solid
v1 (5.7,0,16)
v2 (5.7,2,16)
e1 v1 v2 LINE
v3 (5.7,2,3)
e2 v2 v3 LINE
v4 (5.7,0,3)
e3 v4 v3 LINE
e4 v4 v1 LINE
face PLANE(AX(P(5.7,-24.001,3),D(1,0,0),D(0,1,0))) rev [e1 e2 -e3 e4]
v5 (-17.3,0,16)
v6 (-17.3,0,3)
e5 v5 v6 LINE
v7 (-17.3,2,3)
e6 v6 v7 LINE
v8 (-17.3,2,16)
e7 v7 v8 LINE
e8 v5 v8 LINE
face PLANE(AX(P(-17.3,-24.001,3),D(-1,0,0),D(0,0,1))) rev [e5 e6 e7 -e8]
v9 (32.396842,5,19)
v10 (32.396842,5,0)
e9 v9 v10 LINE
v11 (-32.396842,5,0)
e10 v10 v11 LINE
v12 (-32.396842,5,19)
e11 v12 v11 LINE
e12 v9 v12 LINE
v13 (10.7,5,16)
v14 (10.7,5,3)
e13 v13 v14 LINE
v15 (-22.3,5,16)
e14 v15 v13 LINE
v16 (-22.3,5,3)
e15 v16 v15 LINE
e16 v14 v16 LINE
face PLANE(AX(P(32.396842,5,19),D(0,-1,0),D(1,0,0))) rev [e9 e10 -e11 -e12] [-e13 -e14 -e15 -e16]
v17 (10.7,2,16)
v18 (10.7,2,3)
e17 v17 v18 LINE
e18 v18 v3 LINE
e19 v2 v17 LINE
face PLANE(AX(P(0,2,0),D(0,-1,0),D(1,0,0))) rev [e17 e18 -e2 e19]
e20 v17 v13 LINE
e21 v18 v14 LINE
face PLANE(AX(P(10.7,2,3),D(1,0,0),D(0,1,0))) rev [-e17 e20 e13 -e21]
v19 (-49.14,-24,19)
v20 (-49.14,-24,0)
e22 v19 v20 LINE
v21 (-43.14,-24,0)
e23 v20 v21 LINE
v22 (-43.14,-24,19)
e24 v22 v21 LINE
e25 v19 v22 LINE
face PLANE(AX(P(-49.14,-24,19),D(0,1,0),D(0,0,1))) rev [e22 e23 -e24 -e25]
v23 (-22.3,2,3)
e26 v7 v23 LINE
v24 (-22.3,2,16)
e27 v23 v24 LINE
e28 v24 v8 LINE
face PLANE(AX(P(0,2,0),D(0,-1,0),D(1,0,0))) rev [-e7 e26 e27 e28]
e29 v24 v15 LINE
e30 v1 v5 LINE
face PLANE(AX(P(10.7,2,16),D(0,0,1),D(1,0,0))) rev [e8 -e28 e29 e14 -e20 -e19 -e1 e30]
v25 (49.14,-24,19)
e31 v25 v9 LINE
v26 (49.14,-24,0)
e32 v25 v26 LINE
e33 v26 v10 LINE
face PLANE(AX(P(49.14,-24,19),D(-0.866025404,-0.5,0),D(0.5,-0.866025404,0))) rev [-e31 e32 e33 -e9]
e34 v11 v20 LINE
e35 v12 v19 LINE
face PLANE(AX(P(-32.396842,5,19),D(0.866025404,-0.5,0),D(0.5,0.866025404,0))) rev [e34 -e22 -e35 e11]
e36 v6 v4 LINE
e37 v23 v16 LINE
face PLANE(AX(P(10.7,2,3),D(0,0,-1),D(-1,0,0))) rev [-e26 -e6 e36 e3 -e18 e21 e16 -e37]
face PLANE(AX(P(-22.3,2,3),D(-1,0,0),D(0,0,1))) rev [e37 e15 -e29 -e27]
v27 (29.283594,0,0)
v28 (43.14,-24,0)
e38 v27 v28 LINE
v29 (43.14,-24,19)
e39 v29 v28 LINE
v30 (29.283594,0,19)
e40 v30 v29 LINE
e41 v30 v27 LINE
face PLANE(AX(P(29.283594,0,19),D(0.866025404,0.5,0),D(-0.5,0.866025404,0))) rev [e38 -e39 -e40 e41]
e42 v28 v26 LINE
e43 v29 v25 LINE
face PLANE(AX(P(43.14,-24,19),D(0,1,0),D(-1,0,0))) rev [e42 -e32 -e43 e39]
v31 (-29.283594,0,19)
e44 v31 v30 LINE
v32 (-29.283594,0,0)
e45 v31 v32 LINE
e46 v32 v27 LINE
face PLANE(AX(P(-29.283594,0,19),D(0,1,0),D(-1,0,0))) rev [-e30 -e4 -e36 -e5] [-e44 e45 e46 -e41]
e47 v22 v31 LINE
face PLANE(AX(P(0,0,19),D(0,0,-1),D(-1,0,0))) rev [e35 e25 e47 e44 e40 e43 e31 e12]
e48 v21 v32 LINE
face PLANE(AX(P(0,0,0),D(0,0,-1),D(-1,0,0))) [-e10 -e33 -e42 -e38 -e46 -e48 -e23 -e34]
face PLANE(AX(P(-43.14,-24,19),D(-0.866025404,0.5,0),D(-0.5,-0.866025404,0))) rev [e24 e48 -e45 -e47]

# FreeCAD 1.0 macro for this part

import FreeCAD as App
import Part
import Sketcher

V = App.Vector
Q = App.Units.Quantity


def add_polygon(sketch, points):
    """Adds a closed chain of lines whose ends are joined by coincident constraints."""
    first, n = sketch.GeometryCount, len(points)
    for a, b in zip(points, points[1:] + points[:1]):
        sketch.addGeometry(Part.LineSegment(App.Vector(*a, 0), App.Vector(*b, 0)), False)
    for i in range(n):
        sketch.addConstraint(Sketcher.Constraint("Coincident", first + i, 2, first + (i + 1) % n, 1))

doc = App.newDocument("Part")
body = doc.addObject("PartDesign::Body", "Body")

sketch1 = doc.addObject("Sketcher::SketchObject", "Sketch")
body.addObject(sketch1)
sketch1.AttachmentSupport = (doc.XY_Plane, [""])
sketch1.MapMode = "FlatFace"
add_polygon(sketch1, [(-29.283594, 0), (29.283594, 0), (43.14, -24), (49.14, -24), (32.396842, 5), (-32.396842, 5), (-49.14, -24), (-43.14, -24)])
sketch1.addConstraint([
    Sketcher.Constraint("Horizontal", 0),
    Sketcher.Constraint("Horizontal", 2),
    Sketcher.Constraint("Horizontal", 4),
    Sketcher.Constraint("Horizontal", 6),
    Sketcher.Constraint("Symmetric", 0, 2, 7, 2, -1, 1),
    Sketcher.Constraint("Symmetric", 2, 2, 5, 2, -2),
    Sketcher.Constraint("Parallel", 1, 3),
    Sketcher.Constraint("Parallel", 5, 7),
    Sketcher.Constraint("Equal", 2, 6),
    Sketcher.Constraint("DistanceX", 2, 1, 2, 2, Q("6 mm")),
    Sketcher.Constraint("Angle", 1, Q("-60 deg")),
    Sketcher.Constraint("DistanceY", 1, 2, -1, 1, Q("24 mm")),
    Sketcher.Constraint("DistanceY", -1, 1, 3, 2, Q("5 mm")),
    Sketcher.Constraint("DistanceX", -1, 1, 1, 2, Q("43.14 mm")),
])
pad1 = doc.addObject("PartDesign::Pad", "Pad")
body.addObject(pad1)
pad1.Profile = sketch1
pad1.Length = 19

sketch2 = doc.addObject("Sketcher::SketchObject", "Sketch001")
body.addObject(sketch2)
sketch2.AttachmentSupport = (doc.XZ_Plane, [""])
sketch2.MapMode = "FlatFace"
sketch2.AttachmentOffset = App.Placement(V(0, 0, -5), App.Rotation())
add_polygon(sketch2, [(-22.3, 3), (-22.3, 16), (10.7, 16), (10.7, 3)])
sketch2.addConstraint([
    Sketcher.Constraint("Vertical", 0),
    Sketcher.Constraint("Horizontal", 1),
    Sketcher.Constraint("Vertical", 2),
    Sketcher.Constraint("Horizontal", 3),
    Sketcher.Constraint("DistanceX", 1, 1, 1, 2, Q("33 mm")),
    Sketcher.Constraint("DistanceY", 0, 1, 0, 2, Q("13 mm")),
    Sketcher.Constraint("DistanceY", -1, 1, 0, 2, Q("16 mm")),
    Sketcher.Constraint("DistanceX", 0, 2, -1, 1, Q("22.3 mm")),
])
pocket1 = doc.addObject("PartDesign::Pocket", "Pocket")
body.addObject(pocket1)
pocket1.Profile = sketch2
pocket1.Length = 3
pocket1.Reversed = True

sketch3 = doc.addObject("Sketcher::SketchObject", "Sketch002")
body.addObject(sketch3)
sketch3.AttachmentSupport = (doc.XZ_Plane, [""])
sketch3.MapMode = "FlatFace"
sketch3.AttachmentOffset = App.Placement(V(0, 0, -2), App.Rotation())
add_polygon(sketch3, [(-17.3, 3), (-17.3, 16), (5.7, 16), (5.7, 3)])
sketch3.addConstraint([
    Sketcher.Constraint("Vertical", 0),
    Sketcher.Constraint("Horizontal", 1),
    Sketcher.Constraint("Vertical", 2),
    Sketcher.Constraint("Horizontal", 3),
    Sketcher.Constraint("DistanceX", 1, 1, 1, 2, Q("23 mm")),
    Sketcher.Constraint("DistanceY", 0, 1, 0, 2, Q("13 mm")),
    Sketcher.Constraint("DistanceY", -1, 1, 0, 2, Q("16 mm")),
    Sketcher.Constraint("DistanceX", 0, 2, -1, 1, Q("17.3 mm")),
])
pocket2 = doc.addObject("PartDesign::Pocket", "Pocket001")
body.addObject(pocket2)
pocket2.Profile = sketch3
pocket2.Type = "UpToFirst"
pocket2.Reversed = True

doc.recompute()
